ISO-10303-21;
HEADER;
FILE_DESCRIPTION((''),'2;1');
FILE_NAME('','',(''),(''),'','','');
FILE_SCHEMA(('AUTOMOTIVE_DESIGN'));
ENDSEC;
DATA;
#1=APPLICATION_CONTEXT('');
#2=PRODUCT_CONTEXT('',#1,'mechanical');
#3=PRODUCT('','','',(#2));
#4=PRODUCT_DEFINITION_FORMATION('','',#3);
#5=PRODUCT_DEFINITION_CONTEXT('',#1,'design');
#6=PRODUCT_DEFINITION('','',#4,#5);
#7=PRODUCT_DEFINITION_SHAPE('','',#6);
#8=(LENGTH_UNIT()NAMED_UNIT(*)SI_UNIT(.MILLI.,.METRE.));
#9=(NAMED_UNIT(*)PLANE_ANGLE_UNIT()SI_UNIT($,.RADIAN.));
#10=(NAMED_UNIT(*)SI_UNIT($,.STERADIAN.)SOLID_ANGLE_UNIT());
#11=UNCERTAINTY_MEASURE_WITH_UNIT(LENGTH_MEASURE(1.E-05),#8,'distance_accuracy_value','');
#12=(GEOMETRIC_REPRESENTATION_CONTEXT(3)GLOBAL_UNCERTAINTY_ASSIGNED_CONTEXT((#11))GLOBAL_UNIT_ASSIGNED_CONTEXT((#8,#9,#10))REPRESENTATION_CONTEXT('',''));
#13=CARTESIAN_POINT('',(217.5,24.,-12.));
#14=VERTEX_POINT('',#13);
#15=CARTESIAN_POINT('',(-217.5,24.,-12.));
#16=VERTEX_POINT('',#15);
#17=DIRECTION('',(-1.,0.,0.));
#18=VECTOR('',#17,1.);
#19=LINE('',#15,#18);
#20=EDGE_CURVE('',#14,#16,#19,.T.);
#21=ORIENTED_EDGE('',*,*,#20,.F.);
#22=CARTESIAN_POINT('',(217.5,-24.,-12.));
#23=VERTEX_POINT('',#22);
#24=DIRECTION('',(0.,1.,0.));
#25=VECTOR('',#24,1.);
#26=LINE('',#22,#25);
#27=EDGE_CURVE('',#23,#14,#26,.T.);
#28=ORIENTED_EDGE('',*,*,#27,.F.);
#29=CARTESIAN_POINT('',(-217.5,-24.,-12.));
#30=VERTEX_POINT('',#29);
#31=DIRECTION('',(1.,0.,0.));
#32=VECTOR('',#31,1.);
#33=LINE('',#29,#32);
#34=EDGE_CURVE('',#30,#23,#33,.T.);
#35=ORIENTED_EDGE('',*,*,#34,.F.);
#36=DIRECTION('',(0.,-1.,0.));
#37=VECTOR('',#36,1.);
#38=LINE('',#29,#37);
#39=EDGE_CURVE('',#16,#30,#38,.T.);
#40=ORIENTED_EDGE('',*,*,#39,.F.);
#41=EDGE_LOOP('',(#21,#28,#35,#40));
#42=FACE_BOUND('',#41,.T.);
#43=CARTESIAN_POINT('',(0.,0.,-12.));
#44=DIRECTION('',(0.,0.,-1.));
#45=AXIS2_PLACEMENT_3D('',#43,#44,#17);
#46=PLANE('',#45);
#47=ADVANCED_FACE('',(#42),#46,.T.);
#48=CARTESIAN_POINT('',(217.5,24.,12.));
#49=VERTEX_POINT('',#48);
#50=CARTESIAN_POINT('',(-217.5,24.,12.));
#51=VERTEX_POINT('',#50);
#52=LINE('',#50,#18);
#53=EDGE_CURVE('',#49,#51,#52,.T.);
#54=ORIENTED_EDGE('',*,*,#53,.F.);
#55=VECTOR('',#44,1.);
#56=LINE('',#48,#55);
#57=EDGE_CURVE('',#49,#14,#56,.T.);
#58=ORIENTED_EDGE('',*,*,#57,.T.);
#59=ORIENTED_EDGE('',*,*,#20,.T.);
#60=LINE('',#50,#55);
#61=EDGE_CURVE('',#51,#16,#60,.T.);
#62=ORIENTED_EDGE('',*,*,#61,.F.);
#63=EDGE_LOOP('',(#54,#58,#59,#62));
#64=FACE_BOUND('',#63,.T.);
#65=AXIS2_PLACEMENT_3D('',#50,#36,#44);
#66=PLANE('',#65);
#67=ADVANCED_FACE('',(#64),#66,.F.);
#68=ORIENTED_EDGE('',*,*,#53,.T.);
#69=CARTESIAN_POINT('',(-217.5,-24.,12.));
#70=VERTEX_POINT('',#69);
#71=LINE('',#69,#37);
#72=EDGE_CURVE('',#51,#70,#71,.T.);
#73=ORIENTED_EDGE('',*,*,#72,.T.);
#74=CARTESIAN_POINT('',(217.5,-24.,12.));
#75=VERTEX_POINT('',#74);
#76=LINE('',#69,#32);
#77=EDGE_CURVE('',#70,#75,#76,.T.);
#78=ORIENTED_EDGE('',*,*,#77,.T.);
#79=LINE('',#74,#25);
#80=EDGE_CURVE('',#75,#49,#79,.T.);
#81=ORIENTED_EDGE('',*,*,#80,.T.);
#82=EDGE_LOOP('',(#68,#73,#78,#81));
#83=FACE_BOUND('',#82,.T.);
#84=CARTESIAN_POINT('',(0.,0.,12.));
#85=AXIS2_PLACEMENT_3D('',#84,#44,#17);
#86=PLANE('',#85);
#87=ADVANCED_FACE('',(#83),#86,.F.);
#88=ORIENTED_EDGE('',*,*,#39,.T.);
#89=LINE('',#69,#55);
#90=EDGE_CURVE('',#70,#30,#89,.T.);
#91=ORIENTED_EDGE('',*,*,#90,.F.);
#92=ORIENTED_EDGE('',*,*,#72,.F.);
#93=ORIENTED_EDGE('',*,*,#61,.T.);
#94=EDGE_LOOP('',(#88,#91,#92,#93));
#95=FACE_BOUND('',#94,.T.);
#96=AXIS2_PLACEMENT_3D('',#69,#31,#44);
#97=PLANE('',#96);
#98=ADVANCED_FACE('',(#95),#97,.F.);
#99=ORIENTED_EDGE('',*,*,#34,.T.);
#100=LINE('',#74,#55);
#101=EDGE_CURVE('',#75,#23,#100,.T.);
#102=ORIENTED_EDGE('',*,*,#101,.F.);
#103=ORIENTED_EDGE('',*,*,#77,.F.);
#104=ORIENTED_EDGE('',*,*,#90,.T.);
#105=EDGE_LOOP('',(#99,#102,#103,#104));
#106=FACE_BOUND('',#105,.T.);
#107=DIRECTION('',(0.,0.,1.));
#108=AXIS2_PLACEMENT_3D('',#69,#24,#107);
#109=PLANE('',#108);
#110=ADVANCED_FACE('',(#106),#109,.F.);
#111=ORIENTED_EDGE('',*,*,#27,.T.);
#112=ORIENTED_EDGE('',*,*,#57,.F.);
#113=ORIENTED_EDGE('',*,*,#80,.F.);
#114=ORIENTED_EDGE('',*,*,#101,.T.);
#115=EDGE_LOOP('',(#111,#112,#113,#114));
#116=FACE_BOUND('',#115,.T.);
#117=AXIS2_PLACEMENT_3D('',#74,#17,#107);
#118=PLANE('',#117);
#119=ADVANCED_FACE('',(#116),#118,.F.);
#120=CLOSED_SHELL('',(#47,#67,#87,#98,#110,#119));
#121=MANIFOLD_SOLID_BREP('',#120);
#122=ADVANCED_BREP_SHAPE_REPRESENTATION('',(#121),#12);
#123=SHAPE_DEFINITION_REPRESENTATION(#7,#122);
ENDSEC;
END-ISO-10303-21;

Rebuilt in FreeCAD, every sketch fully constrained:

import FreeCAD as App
import Part
import Sketcher
from FreeCAD import Vector


def add_polygon(sketch, points):
    """Adds a closed chain of lines whose ends are joined by coincident constraints."""
    first, n = sketch.GeometryCount, len(points)
    for a, b in zip(points, points[1:] + points[:1]):
        sketch.addGeometry(Part.LineSegment(App.Vector(*a, 0), App.Vector(*b, 0)), False)
    for i in range(n):
        sketch.addConstraint(Sketcher.Constraint("Coincident", first + i, 2, first + (i + 1) % n, 1))

doc = App.newDocument("Part")
body = doc.addObject("PartDesign::Body", "Body")

# Sketch on XY plane
sketch1 = body.newObject("Sketcher::SketchObject", "Sketch")
sketch1.AttachmentSupport = (doc.getObject("XY_Plane"), [""])
sketch1.MapMode = "FlatFace"
add_polygon(sketch1, [(-218, 24), (-218, -24), (218, -24), (218, 24)])  # lines 0-3
sketch1.addConstraint([
    Sketcher.Constraint("Vertical", 0),
    Sketcher.Constraint("Horizontal", 1),
    Sketcher.Constraint("Vertical", 2),
    Sketcher.Constraint("Horizontal", 3),
    Sketcher.Constraint("Symmetric", 0, 2, 2, 2, -1, 1),
    Sketcher.Constraint("DistanceX", 1, 1, 1, 2, 435.0),
    Sketcher.Constraint("DistanceY", 0, 2, 0, 1, 48.0),
])
pad1 = body.newObject("PartDesign::Pad", "Pad")
pad1.Profile = sketch1
pad1.Length = 24
pad1.Midplane = True

doc.recompute()
